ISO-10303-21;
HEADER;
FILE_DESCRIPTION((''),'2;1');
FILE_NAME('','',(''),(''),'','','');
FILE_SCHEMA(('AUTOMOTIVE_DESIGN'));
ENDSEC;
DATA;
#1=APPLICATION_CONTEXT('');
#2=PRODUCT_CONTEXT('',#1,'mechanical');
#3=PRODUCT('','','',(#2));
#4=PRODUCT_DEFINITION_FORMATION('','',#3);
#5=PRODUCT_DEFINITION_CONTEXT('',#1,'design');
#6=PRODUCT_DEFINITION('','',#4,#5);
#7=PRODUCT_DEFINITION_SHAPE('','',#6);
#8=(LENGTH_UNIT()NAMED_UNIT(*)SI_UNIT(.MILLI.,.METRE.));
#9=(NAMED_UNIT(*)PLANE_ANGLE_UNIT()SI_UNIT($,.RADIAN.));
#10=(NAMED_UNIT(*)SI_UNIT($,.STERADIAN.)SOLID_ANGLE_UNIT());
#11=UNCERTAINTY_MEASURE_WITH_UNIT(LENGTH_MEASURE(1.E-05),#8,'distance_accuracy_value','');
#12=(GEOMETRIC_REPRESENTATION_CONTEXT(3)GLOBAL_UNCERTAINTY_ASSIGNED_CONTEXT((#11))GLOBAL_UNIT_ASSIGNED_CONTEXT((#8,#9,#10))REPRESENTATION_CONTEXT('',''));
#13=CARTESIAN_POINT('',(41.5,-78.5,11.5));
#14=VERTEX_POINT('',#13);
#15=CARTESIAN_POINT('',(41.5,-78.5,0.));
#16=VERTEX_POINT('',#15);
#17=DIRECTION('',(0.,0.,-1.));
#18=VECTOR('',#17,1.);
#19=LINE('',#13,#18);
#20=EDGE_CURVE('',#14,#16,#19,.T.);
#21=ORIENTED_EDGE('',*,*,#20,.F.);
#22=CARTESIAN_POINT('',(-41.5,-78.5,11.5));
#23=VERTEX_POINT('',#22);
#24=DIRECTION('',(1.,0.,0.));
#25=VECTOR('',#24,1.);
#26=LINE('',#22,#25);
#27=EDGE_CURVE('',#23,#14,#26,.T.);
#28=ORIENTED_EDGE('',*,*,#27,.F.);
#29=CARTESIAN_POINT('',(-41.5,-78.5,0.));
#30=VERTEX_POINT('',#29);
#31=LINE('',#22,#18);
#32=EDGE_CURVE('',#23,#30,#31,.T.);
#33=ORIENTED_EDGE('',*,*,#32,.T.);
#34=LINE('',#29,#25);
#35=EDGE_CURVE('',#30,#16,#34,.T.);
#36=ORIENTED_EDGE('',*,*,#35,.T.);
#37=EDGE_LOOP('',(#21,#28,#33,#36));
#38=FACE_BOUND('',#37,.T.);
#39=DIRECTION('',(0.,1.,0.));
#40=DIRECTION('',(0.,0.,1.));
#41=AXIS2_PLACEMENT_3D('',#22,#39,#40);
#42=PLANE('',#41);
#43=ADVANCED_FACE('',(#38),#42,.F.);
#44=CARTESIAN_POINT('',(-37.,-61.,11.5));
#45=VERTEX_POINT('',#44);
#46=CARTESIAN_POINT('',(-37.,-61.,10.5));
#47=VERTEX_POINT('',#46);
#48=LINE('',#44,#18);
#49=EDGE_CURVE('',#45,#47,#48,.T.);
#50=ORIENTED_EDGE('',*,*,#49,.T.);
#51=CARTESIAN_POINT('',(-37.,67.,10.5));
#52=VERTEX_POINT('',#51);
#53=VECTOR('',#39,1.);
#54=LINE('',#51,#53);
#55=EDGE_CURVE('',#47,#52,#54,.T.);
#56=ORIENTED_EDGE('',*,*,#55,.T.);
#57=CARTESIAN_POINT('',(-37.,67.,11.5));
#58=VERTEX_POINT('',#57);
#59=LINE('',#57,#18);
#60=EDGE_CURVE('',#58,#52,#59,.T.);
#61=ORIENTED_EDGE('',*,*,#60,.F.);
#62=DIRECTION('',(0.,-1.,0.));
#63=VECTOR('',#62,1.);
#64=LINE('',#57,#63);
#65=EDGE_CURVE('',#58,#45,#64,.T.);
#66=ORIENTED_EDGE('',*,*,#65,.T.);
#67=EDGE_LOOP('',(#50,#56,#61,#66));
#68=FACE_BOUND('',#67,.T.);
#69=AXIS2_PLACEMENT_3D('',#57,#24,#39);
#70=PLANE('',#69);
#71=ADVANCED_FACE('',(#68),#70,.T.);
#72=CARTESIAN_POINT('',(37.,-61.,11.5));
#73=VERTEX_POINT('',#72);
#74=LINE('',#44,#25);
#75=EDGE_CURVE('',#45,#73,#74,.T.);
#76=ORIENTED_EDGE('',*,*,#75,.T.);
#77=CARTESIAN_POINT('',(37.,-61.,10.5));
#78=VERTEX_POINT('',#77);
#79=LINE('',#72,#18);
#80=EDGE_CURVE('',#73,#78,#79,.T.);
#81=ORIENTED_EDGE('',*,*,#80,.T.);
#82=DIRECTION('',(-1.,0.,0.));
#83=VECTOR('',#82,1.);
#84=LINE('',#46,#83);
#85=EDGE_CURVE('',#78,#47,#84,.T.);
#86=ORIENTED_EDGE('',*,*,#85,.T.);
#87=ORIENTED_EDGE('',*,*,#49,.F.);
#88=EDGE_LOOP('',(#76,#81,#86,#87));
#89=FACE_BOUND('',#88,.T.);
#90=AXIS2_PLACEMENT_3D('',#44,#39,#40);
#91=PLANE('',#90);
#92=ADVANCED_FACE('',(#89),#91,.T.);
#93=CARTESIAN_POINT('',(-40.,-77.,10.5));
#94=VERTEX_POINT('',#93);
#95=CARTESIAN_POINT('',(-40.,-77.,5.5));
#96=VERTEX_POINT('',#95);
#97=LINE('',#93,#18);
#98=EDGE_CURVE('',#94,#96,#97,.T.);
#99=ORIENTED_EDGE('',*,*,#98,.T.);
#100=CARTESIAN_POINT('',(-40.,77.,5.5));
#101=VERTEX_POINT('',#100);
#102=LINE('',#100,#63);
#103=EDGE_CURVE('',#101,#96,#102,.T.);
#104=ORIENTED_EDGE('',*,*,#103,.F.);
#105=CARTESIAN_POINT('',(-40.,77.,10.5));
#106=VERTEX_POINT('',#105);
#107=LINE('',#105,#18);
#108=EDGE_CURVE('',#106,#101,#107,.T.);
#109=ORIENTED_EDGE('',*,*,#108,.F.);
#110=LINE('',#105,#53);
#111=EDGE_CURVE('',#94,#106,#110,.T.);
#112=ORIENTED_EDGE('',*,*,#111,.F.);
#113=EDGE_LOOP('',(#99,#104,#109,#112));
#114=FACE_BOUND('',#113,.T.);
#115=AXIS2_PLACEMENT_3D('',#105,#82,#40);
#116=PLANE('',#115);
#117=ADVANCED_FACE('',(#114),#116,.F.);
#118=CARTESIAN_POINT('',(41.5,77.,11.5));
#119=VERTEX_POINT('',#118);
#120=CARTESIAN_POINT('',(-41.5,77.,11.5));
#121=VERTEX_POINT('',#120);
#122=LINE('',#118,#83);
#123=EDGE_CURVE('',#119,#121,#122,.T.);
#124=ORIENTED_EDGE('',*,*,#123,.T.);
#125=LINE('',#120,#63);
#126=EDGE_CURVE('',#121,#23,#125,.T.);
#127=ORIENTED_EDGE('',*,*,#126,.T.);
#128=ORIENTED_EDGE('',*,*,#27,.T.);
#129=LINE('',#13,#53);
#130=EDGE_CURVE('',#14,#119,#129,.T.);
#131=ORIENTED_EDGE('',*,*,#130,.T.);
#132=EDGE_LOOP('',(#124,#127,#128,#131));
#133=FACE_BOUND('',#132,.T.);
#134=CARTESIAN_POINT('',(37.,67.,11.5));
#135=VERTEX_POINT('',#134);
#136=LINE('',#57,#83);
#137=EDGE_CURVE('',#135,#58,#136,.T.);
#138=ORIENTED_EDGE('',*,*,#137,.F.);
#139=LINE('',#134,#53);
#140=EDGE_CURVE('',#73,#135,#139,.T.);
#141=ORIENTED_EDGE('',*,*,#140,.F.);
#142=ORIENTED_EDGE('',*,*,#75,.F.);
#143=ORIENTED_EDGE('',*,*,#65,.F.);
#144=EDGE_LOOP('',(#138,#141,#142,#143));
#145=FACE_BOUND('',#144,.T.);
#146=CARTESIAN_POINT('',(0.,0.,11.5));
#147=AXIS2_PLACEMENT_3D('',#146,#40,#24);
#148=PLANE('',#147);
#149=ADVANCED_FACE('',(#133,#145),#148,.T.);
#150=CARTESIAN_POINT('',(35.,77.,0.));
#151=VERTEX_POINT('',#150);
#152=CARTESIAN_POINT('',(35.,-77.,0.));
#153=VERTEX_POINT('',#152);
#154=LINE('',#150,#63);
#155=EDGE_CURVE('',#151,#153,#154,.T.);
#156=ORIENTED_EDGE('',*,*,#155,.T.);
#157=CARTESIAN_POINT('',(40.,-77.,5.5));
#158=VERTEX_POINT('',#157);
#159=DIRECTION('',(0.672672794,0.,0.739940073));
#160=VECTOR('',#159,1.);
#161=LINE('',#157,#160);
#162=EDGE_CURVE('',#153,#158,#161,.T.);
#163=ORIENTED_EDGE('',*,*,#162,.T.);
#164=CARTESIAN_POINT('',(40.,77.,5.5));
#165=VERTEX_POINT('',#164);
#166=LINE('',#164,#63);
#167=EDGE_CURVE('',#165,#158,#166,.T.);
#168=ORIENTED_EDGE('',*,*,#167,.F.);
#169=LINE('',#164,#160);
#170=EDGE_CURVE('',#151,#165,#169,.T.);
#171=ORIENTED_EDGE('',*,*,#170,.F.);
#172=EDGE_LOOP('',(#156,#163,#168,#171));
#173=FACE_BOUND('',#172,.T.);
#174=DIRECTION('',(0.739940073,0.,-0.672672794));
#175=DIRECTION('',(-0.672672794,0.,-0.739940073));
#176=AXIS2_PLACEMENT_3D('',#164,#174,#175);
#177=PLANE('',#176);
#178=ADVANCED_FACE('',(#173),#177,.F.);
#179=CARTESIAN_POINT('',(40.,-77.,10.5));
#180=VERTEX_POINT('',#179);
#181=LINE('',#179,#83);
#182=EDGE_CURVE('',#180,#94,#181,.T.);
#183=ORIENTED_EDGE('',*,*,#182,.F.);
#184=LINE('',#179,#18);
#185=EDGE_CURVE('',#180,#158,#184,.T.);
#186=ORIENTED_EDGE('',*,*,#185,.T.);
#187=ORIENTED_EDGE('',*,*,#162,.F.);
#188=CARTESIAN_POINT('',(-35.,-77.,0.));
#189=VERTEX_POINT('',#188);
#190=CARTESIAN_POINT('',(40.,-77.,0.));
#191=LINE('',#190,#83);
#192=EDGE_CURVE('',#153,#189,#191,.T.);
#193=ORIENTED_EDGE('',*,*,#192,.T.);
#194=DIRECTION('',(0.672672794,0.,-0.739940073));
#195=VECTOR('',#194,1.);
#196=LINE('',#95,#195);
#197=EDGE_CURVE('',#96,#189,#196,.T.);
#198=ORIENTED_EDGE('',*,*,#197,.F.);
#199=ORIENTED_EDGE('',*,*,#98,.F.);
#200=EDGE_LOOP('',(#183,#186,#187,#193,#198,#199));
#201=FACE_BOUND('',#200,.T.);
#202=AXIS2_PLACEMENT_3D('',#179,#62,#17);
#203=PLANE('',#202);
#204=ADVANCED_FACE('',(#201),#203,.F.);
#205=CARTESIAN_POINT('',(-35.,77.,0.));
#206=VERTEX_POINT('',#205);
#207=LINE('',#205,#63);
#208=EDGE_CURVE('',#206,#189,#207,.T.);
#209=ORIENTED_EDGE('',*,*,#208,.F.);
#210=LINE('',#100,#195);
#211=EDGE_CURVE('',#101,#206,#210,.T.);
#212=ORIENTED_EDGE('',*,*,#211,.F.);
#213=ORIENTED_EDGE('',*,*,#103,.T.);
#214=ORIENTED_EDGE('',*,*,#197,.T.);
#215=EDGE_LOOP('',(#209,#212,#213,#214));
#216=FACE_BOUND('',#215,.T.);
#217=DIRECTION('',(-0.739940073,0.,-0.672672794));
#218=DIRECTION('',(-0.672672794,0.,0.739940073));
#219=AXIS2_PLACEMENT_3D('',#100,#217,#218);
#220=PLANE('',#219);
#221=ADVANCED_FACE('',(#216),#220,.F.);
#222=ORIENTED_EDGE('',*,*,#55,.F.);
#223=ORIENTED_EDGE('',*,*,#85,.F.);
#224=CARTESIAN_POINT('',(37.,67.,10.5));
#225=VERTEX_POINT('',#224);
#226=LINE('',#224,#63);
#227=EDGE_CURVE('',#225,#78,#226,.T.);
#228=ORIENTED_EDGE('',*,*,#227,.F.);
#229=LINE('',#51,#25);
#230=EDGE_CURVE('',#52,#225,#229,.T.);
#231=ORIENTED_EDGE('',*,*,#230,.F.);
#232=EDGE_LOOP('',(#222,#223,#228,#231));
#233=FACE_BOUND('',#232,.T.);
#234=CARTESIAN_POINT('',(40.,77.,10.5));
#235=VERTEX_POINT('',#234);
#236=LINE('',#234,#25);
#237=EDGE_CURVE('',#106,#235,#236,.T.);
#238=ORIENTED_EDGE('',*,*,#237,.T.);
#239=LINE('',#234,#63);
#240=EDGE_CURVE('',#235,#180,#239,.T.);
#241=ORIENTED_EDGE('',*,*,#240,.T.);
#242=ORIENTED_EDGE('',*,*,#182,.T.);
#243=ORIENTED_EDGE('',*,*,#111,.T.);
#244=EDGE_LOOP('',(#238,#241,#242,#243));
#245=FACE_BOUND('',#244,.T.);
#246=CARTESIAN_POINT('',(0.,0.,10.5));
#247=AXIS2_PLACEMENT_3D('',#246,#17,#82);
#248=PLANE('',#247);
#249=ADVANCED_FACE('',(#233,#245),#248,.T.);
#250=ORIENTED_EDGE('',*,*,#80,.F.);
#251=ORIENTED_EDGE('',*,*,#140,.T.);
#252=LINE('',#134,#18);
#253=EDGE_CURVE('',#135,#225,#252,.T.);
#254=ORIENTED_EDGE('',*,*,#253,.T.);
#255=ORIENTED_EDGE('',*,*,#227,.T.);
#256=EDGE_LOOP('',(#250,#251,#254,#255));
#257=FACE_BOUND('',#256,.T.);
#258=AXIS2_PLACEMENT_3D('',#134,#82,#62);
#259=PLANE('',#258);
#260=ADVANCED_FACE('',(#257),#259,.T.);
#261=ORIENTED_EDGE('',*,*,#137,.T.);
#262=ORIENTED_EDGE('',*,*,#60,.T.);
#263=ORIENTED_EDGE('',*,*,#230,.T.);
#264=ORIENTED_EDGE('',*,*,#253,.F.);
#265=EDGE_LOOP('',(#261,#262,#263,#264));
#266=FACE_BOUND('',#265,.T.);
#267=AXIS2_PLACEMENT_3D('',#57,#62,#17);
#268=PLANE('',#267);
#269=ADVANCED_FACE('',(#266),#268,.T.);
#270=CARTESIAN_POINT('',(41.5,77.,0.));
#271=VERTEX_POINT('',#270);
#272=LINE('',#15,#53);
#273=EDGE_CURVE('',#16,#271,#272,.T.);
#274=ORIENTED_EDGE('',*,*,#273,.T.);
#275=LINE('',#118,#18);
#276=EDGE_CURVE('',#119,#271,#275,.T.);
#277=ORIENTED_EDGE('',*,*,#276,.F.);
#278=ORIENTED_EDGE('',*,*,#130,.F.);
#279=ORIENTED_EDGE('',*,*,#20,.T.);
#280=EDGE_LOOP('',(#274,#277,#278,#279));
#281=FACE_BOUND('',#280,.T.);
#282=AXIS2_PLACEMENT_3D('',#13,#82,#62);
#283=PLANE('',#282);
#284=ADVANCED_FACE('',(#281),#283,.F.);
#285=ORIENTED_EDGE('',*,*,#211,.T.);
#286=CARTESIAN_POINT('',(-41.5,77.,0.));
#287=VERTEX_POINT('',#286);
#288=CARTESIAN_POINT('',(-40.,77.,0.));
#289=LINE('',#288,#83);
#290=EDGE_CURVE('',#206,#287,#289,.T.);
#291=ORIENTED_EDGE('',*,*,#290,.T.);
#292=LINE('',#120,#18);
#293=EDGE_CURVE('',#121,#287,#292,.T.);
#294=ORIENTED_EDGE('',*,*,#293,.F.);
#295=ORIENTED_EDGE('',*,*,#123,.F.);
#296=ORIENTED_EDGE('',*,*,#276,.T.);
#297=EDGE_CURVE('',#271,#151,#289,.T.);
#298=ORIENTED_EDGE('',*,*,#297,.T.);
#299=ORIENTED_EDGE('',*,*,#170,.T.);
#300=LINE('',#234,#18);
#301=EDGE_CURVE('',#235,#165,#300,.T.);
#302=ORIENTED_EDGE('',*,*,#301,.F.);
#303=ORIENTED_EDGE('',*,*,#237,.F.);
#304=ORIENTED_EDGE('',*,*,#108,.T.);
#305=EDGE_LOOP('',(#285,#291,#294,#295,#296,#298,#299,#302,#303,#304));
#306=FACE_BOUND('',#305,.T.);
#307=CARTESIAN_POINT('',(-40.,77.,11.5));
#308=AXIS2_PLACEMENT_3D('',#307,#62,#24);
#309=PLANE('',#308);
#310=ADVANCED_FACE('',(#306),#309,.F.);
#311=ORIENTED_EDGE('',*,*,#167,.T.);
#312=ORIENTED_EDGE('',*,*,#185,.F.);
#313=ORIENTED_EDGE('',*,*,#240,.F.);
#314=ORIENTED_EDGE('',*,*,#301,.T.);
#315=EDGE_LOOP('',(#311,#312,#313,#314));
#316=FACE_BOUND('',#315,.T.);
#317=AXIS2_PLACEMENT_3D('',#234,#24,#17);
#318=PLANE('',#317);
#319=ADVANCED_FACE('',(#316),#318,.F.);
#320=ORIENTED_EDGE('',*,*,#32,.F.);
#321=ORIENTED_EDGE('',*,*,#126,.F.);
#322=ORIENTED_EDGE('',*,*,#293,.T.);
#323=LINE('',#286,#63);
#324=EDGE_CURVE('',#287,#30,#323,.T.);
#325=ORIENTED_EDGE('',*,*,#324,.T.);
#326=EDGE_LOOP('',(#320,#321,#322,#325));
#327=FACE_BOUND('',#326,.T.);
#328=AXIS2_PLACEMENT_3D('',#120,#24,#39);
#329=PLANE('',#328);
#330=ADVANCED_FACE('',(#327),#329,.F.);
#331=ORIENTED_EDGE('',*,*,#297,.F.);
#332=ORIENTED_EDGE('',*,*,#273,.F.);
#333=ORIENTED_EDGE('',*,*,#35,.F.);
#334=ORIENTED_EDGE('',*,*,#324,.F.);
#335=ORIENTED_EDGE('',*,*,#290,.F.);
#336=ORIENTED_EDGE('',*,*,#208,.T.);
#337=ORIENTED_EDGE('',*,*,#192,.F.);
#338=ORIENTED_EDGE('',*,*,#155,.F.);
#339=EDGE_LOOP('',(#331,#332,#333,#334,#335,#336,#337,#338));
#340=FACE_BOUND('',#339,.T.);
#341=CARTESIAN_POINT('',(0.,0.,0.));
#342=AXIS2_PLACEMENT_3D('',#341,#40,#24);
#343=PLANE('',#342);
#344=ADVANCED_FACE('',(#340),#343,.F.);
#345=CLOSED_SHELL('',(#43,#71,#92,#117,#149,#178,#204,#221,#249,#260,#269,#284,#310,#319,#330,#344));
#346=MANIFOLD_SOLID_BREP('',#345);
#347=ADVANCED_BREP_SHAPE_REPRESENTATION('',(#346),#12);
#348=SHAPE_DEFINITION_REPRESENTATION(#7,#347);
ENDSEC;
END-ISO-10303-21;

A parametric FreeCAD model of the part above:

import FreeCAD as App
import Part
import Sketcher

doc = App.newDocument("Part")
body = doc.addObject("PartDesign::Body", "Body")

# Sketch on XY plane
sketch1 = doc.addObject("Sketcher::SketchObject", "Sketch")
body.addObject(sketch1)
sketch1.AttachmentSupport = (doc.XY_Plane, [""])
sketch1.MapMode = "FlatFace"
sketch1.addGeometry([
    Part.LineSegment(App.Vector(-42, 77, 0), App.Vector(-42, -78, 0)),  # 0
    Part.LineSegment(App.Vector(-42, -78, 0), App.Vector(42, -78, 0)),  # 1
    Part.LineSegment(App.Vector(42, -78, 0), App.Vector(42, 77, 0)),  # 2
    Part.LineSegment(App.Vector(42, 77, 0), App.Vector(-42, 77, 0)),  # 3
    Part.LineSegment(App.Vector(37, -61, 0), App.Vector(-37, -61, 0)),  # 4
    Part.LineSegment(App.Vector(-37, -61, 0), App.Vector(-37, 67, 0)),  # 5
    Part.LineSegment(App.Vector(-37, 67, 0), App.Vector(37, 67, 0)),  # 6
    Part.LineSegment(App.Vector(37, 67, 0), App.Vector(37, -61, 0)),  # 7
], False)
sketch1.addConstraint([
    Sketcher.Constraint("Coincident", 0, 2, 1, 1),
    Sketcher.Constraint("Coincident", 1, 2, 2, 1),
    Sketcher.Constraint("Coincident", 2, 2, 3, 1),
    Sketcher.Constraint("Coincident", 3, 2, 0, 1),
    Sketcher.Constraint("Coincident", 4, 2, 5, 1),
    Sketcher.Constraint("Coincident", 5, 2, 6, 1),
    Sketcher.Constraint("Coincident", 6, 2, 7, 1),
    Sketcher.Constraint("Coincident", 7, 2, 4, 1),
    Sketcher.Constraint("Vertical", 0),
    Sketcher.Constraint("Horizontal", 1),
    Sketcher.Constraint("Vertical", 2),
    Sketcher.Constraint("Horizontal", 3),
    Sketcher.Constraint("Horizontal", 4),
    Sketcher.Constraint("Vertical", 5),
    Sketcher.Constraint("Horizontal", 6),
    Sketcher.Constraint("Vertical", 7),
    Sketcher.Constraint("DistanceX", 1, 1, 1, 2, 83.0),
    Sketcher.Constraint("DistanceX", 4, 2, 4, 1, 74.0),
    Sketcher.Constraint("DistanceY", 5, 1, 5, 2, 128.0),
    Sketcher.Constraint("DistanceY", 0, 2, 0, 1, 155.5),
    Sketcher.Constraint("DistanceY", -1, 1, 2, 2, 77.0),
    Sketcher.Constraint("DistanceX", 4, 2, -1, 1, 37.0),
    Sketcher.Constraint("DistanceY", 4, 2, -1, 1, 61.0),
    Sketcher.Constraint("DistanceX", 0, 2, -1, 1, 41.5),
])
pad1 = doc.addObject("PartDesign::Pad", "Pad")
body.addObject(pad1)
pad1.Profile = sketch1
pad1.Length = 11.5

# Sketch on XY plane
sketch2 = doc.addObject("Sketcher::SketchObject", "Sketch001")
body.addObject(sketch2)
sketch2.AttachmentSupport = (doc.XY_Plane, [""])
sketch2.MapMode = "FlatFace"
sketch2.addGeometry([
    Part.LineSegment(App.Vector(40, 77, 0), App.Vector(40, -77, 0)),
    Part.LineSegment(App.Vector(40, -77, 0), App.Vector(-40, -77, 0)),
    Part.LineSegment(App.Vector(-40, -77, 0), App.Vector(-40, 77, 0)),
    Part.LineSegment(App.Vector(-40, 77, 0), App.Vector(40, 77, 0)),
], False)
sketch2.addConstraint([
    Sketcher.Constraint("Coincident", 0, 2, 1, 1),
    Sketcher.Constraint("Coincident", 1, 2, 2, 1),
    Sketcher.Constraint("Coincident", 2, 2, 3, 1),
    Sketcher.Constraint("Coincident", 3, 2, 0, 1),
    Sketcher.Constraint("Vertical", 0),
    Sketcher.Constraint("Horizontal", 1),
    Sketcher.Constraint("Vertical", 2),
    Sketcher.Constraint("Horizontal", 3),
    Sketcher.Constraint("Symmetric", 0, 2, 2, 2, -1, 1),
    Sketcher.Constraint("DistanceX", 1, 2, 1, 1, 80.0),
    Sketcher.Constraint("DistanceY", 0, 2, 0, 1, 154.0),
])
pocket1 = doc.addObject("PartDesign::Pocket", "Pocket")
body.addObject(pocket1)
pocket1.Profile = sketch2
pocket1.Length = 10.5
pocket1.Reversed = True

# Sketch on XZ plane
sketch3 = doc.addObject("Sketcher::SketchObject", "Sketch002")
body.addObject(sketch3)
sketch3.AttachmentSupport = (doc.XZ_Plane, [""])
sketch3.MapMode = "FlatFace"
sketch3.AttachmentOffset = App.Placement(App.Vector(0, 0, 77), App.Rotation())
sketch3.addGeometry([
    Part.LineSegment(App.Vector(-40, 6, 0), App.Vector(-35, 0, 0)),  # 0
    Part.LineSegment(App.Vector(-35, 0, 0), App.Vector(-40, 0, 0)),  # 1
    Part.LineSegment(App.Vector(-40, 0, 0), App.Vector(-40, 6, 0)),  # 2
    Part.LineSegment(App.Vector(40, 6, 0), App.Vector(40, 0, 0)),  # 3
    Part.LineSegment(App.Vector(40, 0, 0), App.Vector(35, 0, 0)),  # 4
    Part.LineSegment(App.Vector(35, 0, 0), App.Vector(40, 6, 0)),  # 5
], False)
sketch3.addConstraint([
    Sketcher.Constraint("Coincident", 0, 2, 1, 1),
    Sketcher.Constraint("Coincident", 1, 2, 2, 1),
    Sketcher.Constraint("Coincident", 2, 2, 0, 1),
    Sketcher.Constraint("Coincident", 3, 2, 4, 1),
    Sketcher.Constraint("Coincident", 4, 2, 5, 1),
    Sketcher.Constraint("Coincident", 5, 2, 3, 1),
    Sketcher.Constraint("Horizontal", 1),
    Sketcher.Constraint("Vertical", 2),
    Sketcher.Constraint("Vertical", 3),
    Sketcher.Constraint("Horizontal", 4),
    Sketcher.Constraint("Symmetric", 1, 2, 3, 2, -1, 1),
    Sketcher.Constraint("Symmetric", 0, 2, 4, 2, -2),
    Sketcher.Constraint("Horizontal", 2, 2, 5, 2),
    Sketcher.Constraint("DistanceX", 1, 2, 1, 1, 5.0),
    Sketcher.Constraint("DistanceY", 2, 1, 2, 2, 5.5),
    Sketcher.Constraint("DistanceX", 0, 2, -1, 1, 35.0),
])
pad2 = doc.addObject("PartDesign::Pad", "Pad001")
body.addObject(pad2)
pad2.Profile = sketch3
pad2.Length = 154
pad2.Reversed = True

doc.recompute()
